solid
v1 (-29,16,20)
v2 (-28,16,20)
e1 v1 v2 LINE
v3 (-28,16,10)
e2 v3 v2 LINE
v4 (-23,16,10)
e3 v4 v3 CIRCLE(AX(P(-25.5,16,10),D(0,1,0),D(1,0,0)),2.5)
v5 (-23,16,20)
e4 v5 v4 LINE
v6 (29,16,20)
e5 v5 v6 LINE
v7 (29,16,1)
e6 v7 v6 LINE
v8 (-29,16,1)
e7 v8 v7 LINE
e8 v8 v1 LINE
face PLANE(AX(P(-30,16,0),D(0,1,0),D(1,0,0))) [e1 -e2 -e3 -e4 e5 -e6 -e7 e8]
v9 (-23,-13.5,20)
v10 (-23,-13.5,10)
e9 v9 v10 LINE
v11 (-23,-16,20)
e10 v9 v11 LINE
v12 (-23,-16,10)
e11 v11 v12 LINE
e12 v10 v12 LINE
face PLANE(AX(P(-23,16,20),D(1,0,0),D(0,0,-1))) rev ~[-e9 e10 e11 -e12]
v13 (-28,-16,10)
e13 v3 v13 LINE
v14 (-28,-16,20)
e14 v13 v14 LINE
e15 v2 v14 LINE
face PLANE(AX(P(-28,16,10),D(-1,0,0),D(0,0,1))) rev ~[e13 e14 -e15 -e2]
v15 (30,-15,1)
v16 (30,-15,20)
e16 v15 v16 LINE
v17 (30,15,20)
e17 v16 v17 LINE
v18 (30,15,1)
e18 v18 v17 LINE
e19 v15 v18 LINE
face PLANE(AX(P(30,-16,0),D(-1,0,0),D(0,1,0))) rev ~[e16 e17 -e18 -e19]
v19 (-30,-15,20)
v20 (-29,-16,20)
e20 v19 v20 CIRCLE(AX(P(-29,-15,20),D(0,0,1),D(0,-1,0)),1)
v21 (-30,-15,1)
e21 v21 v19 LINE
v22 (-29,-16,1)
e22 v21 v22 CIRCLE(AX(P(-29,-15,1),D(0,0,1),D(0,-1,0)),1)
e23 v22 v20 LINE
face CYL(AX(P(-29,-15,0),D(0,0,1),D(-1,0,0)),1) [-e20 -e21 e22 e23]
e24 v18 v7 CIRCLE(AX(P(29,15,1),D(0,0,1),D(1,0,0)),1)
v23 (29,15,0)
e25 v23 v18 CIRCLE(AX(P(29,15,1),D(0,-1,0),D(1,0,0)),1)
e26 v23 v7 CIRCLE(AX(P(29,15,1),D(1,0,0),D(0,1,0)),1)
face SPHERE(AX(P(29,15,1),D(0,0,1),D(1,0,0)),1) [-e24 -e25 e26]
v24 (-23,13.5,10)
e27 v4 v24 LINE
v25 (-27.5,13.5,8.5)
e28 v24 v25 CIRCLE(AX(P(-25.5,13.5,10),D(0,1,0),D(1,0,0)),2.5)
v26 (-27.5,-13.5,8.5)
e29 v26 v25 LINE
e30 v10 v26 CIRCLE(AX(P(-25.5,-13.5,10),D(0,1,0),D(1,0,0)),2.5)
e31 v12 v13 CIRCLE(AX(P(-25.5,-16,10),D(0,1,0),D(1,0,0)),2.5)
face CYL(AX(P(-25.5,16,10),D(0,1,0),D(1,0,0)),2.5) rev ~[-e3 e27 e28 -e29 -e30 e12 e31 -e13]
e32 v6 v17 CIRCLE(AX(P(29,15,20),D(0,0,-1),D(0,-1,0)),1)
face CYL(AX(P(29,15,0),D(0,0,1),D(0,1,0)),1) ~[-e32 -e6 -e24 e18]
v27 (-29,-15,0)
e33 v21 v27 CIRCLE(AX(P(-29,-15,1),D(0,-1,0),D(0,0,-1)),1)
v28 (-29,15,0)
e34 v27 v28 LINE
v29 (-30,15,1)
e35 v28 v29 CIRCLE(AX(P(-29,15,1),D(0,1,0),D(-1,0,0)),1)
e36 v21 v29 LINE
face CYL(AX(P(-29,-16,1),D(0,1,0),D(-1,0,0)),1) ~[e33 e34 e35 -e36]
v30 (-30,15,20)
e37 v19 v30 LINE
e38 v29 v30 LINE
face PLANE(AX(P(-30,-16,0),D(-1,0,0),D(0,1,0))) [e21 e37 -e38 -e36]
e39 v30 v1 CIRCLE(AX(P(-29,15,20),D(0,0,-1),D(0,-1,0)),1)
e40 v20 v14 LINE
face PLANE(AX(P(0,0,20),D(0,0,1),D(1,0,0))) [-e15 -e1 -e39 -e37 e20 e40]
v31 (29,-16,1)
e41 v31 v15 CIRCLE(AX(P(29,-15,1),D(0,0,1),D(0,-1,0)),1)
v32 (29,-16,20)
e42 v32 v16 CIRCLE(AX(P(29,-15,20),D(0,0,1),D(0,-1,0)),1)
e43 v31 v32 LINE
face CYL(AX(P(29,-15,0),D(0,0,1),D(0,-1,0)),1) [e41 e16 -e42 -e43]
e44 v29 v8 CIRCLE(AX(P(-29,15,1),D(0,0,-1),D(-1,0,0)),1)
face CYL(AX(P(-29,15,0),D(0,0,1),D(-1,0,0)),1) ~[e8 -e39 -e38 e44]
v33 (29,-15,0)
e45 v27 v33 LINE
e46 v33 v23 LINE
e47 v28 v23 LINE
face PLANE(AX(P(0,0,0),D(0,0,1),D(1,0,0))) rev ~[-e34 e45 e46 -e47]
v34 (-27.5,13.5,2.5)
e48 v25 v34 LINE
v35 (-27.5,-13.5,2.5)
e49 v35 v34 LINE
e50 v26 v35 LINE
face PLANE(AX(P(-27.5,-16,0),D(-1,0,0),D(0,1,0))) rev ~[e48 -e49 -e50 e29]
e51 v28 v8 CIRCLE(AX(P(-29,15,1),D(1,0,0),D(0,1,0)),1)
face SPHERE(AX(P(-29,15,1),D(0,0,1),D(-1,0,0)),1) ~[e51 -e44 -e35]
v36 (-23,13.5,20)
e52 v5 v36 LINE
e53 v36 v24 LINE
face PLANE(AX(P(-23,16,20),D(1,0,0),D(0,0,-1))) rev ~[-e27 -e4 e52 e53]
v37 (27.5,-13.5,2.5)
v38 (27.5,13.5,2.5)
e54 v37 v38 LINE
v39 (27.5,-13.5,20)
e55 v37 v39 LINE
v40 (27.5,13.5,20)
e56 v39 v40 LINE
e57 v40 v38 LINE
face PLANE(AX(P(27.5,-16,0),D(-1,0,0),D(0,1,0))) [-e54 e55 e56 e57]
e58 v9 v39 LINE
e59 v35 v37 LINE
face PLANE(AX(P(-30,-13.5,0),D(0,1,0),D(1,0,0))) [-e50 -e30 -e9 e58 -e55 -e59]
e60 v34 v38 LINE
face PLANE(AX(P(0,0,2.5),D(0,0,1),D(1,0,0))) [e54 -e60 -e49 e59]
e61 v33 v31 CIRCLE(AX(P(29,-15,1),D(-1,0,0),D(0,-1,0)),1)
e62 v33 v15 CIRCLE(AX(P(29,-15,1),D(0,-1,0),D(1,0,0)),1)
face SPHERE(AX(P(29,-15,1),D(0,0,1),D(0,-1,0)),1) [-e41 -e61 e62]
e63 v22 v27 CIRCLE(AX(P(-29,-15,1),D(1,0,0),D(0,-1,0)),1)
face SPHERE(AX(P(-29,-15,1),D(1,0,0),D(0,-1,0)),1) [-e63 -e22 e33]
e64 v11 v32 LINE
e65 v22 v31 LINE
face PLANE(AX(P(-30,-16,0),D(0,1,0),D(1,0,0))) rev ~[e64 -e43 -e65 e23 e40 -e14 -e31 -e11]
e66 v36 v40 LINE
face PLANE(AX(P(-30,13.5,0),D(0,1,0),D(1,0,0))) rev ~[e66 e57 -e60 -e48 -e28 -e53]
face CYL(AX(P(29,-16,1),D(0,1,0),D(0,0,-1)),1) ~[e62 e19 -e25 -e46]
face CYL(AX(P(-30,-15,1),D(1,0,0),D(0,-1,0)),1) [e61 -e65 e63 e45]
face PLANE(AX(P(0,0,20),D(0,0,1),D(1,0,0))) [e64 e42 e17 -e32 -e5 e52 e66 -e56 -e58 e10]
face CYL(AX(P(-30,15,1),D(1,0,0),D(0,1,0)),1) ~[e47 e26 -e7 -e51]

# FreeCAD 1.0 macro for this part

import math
import FreeCAD as App
import Part
import Sketcher

V = App.Vector


def edges_at(feature, points):
    """Names of the edges that pass closest to the given points."""
    edges = feature.Shape.Edges
    near = lambda p: min(range(len(edges)), key=lambda i: edges[i].distToShape(Part.Vertex(*p))[0])
    return sorted({f"Edge{near(p) + 1}" for p in points})


def faces_at(feature, points):
    """Names of the faces that lie closest to the given points."""
    faces = feature.Shape.Faces
    near = lambda p: min(range(len(faces)), key=lambda i: faces[i].distToShape(Part.Vertex(*p))[0])
    return sorted({f"Face{near(p) + 1}" for p in points})

doc = App.newDocument("Part")
params = doc.addObject("Spreadsheet::Sheet", "Params")
for row, (alias, value) in enumerate([
    ("sketch1_width", "60 mm"),
    ("sketch1_height", "32 mm"),
    ("pad1_length", "20 mm"),
    ("thickness_wall", "2.5 mm"),
    ("sketch2_radius", "2.5 mm"),
    ("sketch2_height", "10 mm"),
    ("fillet_radius", "1 mm"),
], start=1):
    params.set(f"A{row}", alias)
    params.set(f"B{row}", "=" + value)
    params.setAlias(f"B{row}", alias)

body = doc.addObject("PartDesign::Body", "Body")

sketch1 = body.newObject("Sketcher::SketchObject", "Sketch")
sketch1.AttachmentSupport = (doc.getObject("XY_Plane"), [""])
sketch1.MapMode = "FlatFace"
sketch1.addGeometry(Part.LineSegment(V(-30, 16, 0), V(-30, -16, 0)), False)
sketch1.addGeometry(Part.LineSegment(V(-30, -16, 0), V(30, -16, 0)), False)
sketch1.addGeometry(Part.LineSegment(V(30, -16, 0), V(30, 16, 0)), False)
sketch1.addGeometry(Part.LineSegment(V(30, 16, 0), V(-30, 16, 0)), False)
sketch1.addConstraint(Sketcher.Constraint("Coincident", 0, 2, 1, 1))
sketch1.addConstraint(Sketcher.Constraint("Coincident", 1, 2, 2, 1))
sketch1.addConstraint(Sketcher.Constraint("Coincident", 2, 2, 3, 1))
sketch1.addConstraint(Sketcher.Constraint("Coincident", 3, 2, 0, 1))
sketch1.addConstraint(Sketcher.Constraint("Vertical", 0))
sketch1.addConstraint(Sketcher.Constraint("Horizontal", 1))
sketch1.addConstraint(Sketcher.Constraint("Vertical", 2))
sketch1.addConstraint(Sketcher.Constraint("Horizontal", 3))
sketch1.addConstraint(Sketcher.Constraint("Symmetric", 0, 2, 2, 2, -1, 1))
sketch1.addConstraint(Sketcher.Constraint("DistanceX", 1, 1, 1, 2, 60.0))
sketch1.addConstraint(Sketcher.Constraint("DistanceY", 0, 2, 0, 1, 32.0))
sketch1.setExpression("Constraints[9]", "Params.sketch1_width")
sketch1.setExpression("Constraints[10]", "Params.sketch1_height")
pad1 = body.newObject("PartDesign::Pad", "Pad")
pad1.Profile = sketch1
pad1.setExpression("Length", "Params.pad1_length")
doc.recompute()

thickness = body.newObject("PartDesign::Thickness", "Thickness")
thickness.Base = (pad1, faces_at(pad1, [(0, 0, 20)]))
thickness.setExpression("Value", "Params.thickness_wall")
thickness.Reversed = True
thickness.Join = "Arc"

sketch2 = body.newObject("Sketcher::SketchObject", "Sketch001")
sketch2.AttachmentSupport = (doc.getObject("XZ_Plane"), [""])
sketch2.MapMode = "FlatFace"
sketch2.AttachmentOffset = App.Placement(V(0, 0, -16), App.Rotation())
sketch2.addGeometry(Part.LineSegment(V(-23, 20, 0), V(-23, 10, 0)), False)
sketch2.addGeometry(Part.ArcOfCircle(Part.Circle(V(-25.5, 10, 0), V(0, 0, 1), 2.5), math.radians(180), math.radians(360)), False)
sketch2.addGeometry(Part.LineSegment(V(-28, 10, 0), V(-28, 20, 0)), False)
sketch2.addGeometry(Part.LineSegment(V(-28, 20, 0), V(-23, 20, 0)), False)
sketch2.addConstraint(Sketcher.Constraint("Tangent", 0, 2, 1, 2))
sketch2.addConstraint(Sketcher.Constraint("Tangent", 1, 1, 2, 1))
sketch2.addConstraint(Sketcher.Constraint("Coincident", 2, 2, 3, 1))
sketch2.addConstraint(Sketcher.Constraint("Coincident", 3, 2, 0, 1))
sketch2.addConstraint(Sketcher.Constraint("Vertical", 0))
sketch2.addConstraint(Sketcher.Constraint("Vertical", 2))
sketch2.addConstraint(Sketcher.Constraint("Horizontal", 3))
sketch2.addConstraint(Sketcher.Constraint("Radius", 1, 2.5))
sketch2.addConstraint(Sketcher.Constraint("DistanceY", 0, 2, 0, 1, 10.0))
sketch2.addConstraint(Sketcher.Constraint("DistanceY", -1, 1, 1, 3, 10.0))
sketch2.addConstraint(Sketcher.Constraint("DistanceX", 0, 2, -1, 1, 23.0))
sketch2.setExpression("Constraints[7]", "Params.sketch2_radius")
sketch2.setExpression("Constraints[8]", "Params.sketch2_height")
pocket1 = body.newObject("PartDesign::Pocket", "Pocket")
pocket1.Profile = sketch2
pocket1.Type = "ThroughAll"
pocket1.Reversed = True
doc.recompute()

fillet = body.newObject("PartDesign::Fillet", "Fillet")
fillet.Base = (pocket1, edges_at(pocket1, [
    (30, -16, 10),
    (0, -16, 0),
    (30, 16, 10),
    (30, 0, 0),
    (-30, -16, 10),
    (-30, 16, 10),
    (-30, 0, 0),
    (0, 16, 0),
]))
fillet.setExpression("Radius", "Params.fillet_radius")

doc.recompute()
